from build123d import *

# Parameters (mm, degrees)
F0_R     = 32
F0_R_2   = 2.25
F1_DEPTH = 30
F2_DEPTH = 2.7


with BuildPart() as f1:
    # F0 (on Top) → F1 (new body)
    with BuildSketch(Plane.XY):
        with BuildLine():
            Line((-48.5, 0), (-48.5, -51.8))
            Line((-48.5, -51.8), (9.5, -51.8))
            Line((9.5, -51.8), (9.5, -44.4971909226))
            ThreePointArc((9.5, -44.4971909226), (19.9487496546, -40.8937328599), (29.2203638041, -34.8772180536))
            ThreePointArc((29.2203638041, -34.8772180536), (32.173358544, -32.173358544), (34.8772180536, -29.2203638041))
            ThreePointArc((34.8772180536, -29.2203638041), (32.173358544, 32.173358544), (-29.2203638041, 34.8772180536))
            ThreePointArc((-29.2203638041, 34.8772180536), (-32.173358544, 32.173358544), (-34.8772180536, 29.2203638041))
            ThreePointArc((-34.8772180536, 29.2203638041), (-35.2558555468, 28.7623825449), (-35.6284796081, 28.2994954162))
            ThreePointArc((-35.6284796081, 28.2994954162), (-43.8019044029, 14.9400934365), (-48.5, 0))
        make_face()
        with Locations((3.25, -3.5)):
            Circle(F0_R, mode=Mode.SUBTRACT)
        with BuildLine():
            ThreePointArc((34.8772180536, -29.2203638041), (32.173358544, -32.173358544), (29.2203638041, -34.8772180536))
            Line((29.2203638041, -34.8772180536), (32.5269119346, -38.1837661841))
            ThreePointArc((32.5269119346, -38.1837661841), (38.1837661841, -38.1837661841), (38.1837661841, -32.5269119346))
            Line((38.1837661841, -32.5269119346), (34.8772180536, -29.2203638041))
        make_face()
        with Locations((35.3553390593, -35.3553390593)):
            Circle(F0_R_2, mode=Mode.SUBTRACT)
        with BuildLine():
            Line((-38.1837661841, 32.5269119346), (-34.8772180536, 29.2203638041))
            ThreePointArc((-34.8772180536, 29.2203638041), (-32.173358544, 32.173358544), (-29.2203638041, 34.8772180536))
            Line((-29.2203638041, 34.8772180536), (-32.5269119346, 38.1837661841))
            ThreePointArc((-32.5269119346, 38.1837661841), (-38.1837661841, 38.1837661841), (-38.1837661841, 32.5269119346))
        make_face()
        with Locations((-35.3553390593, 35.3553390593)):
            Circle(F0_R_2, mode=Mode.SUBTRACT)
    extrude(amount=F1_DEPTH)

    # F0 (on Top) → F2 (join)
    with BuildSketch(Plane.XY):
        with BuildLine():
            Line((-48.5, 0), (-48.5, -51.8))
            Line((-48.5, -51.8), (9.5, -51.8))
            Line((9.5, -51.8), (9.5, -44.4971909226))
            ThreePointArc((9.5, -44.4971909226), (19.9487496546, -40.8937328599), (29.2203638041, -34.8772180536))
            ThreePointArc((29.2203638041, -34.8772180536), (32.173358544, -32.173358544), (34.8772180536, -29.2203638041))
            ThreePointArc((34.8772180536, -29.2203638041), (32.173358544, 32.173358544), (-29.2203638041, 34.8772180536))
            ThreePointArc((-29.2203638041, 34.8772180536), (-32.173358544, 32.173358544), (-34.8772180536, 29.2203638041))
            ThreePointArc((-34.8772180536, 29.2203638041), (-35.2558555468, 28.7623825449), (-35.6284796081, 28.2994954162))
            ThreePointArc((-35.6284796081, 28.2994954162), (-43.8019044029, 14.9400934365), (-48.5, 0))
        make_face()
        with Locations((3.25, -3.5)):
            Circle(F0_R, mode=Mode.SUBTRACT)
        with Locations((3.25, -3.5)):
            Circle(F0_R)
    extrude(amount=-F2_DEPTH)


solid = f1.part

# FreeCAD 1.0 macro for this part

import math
import FreeCAD as App
import Part
import Sketcher
Q = App.Units.Quantity

doc = App.newDocument("Part")
body = doc.addObject("PartDesign::Body", "Body")

# Sketch on XY plane
sketch1 = doc.addObject("Sketcher::SketchObject", "Sketch")
body.addObject(sketch1)
sketch1.AttachmentSupport = (doc.XY_Plane, [""])
sketch1.MapMode = "FlatFace"
sketch1.addGeometry(Part.LineSegment(App.Vector(-48.5, 0, 0), App.Vector(-48.5, -51.8, 0)), False)
sketch1.addGeometry(Part.LineSegment(App.Vector(-48.5, -51.8, 0), App.Vector(9.5, -51.8, 0)), False)
sketch1.addGeometry(Part.LineSegment(App.Vector(9.5, -51.8, 0), App.Vector(9.5, -44.5, 0)), False)
sketch1.addGeometry(Part.ArcOfCircle(Part.Circle(App.Vector(0, 0, 0), App.Vector(0, 0, 1), 45.5), math.radians(-78), math.radians(-50)), False)
sketch1.addGeometry(Part.LineSegment(App.Vector(29.2, -34.9, 0), App.Vector(32.5, -38.2, 0)), False)
sketch1.addGeometry(Part.ArcOfCircle(Part.Circle(App.Vector(35.4, -35.4, 0), App.Vector(0, 0, 1), 4), math.radians(-135), math.radians(45)), False)
sketch1.addGeometry(Part.LineSegment(App.Vector(38.2, -32.5, 0), App.Vector(34.9, -29.2, 0)), False)
sketch1.addGeometry(Part.ArcOfCircle(Part.Circle(App.Vector(0, 0, 0), App.Vector(0, 0, 1), 45.5), math.radians(-40), math.radians(130)), False)
sketch1.addGeometry(Part.LineSegment(App.Vector(-29.2, 34.9, 0), App.Vector(-32.5, 38.2, 0)), False)
sketch1.addGeometry(Part.ArcOfCircle(Part.Circle(App.Vector(-35.4, 35.4, 0), App.Vector(0, 0, 1), 4), math.radians(45), math.radians(225)), False)
sketch1.addGeometry(Part.LineSegment(App.Vector(-38.2, 32.5, 0), App.Vector(-34.9, 29.2, 0)), False)
sketch1.addGeometry(Part.ArcOfCircle(Part.Circle(App.Vector(0, 0, 0), App.Vector(0, 0, 1), 45.5), math.radians(140.04), math.radians(141.54)), False)
sketch1.addGeometry(Part.ArcOfCircle(Part.Circle(App.Vector(14.7, -11.7, 0), App.Vector(0, 0, 1), 64.2), math.radians(142), math.radians(170)), False)
sketch1.addGeometry(Part.Circle(App.Vector(35.4, -35.4, 0), App.Vector(0, 0, 1), 2.2), False)
sketch1.addGeometry(Part.Circle(App.Vector(3.2, -3.5, 0), App.Vector(0, 0, 1), 32), False)
sketch1.addGeometry(Part.Circle(App.Vector(-35.4, 35.4, 0), App.Vector(0, 0, 1), 2.2), False)
sketch1.addConstraint(Sketcher.Constraint("Coincident", 0, 2, 1, 1))
sketch1.addConstraint(Sketcher.Constraint("Coincident", 1, 2, 2, 1))
sketch1.addConstraint(Sketcher.Constraint("Coincident", 2, 2, 3, 1))
sketch1.addConstraint(Sketcher.Constraint("Coincident", 3, 2, 4, 1))
sketch1.addConstraint(Sketcher.Constraint("Tangent", 4, 2, 5, 1))
sketch1.addConstraint(Sketcher.Constraint("Tangent", 5, 2, 6, 1))
sketch1.addConstraint(Sketcher.Constraint("Coincident", 6, 2, 7, 1))
sketch1.addConstraint(Sketcher.Constraint("Coincident", 7, 2, 8, 1))
sketch1.addConstraint(Sketcher.Constraint("Tangent", 8, 2, 9, 1))
sketch1.addConstraint(Sketcher.Constraint("Tangent", 9, 2, 10, 1))
sketch1.addConstraint(Sketcher.Constraint("Coincident", 10, 2, 11, 1))
sketch1.addConstraint(Sketcher.Constraint("Tangent", 11, 2, 12, 1))
sketch1.addConstraint(Sketcher.Constraint("Coincident", 12, 2, 0, 1))
sketch1.addConstraint(Sketcher.Constraint("Vertical", 0))
sketch1.addConstraint(Sketcher.Constraint("Horizontal", 1))
sketch1.addConstraint(Sketcher.Constraint("Vertical", 2))
sketch1.addConstraint(Sketcher.Constraint("Coincident", 3, 3, -1, 1))
sketch1.addConstraint(Sketcher.Constraint("Coincident", 7, 3, -1, 1))
sketch1.addConstraint(Sketcher.Constraint("Coincident", 11, 3, -1, 1))
sketch1.addConstraint(Sketcher.Constraint("Coincident", 13, 3, 5, 3))
sketch1.addConstraint(Sketcher.Constraint("Coincident", 15, 3, 9, 3))
sketch1.addConstraint(Sketcher.Constraint("Equal", 3, 7))
sketch1.addConstraint(Sketcher.Constraint("Equal", 5, 9))
sketch1.addConstraint(Sketcher.Constraint("Equal", 7, 11))
sketch1.addConstraint(Sketcher.Constraint("Equal", 13, 15))
sketch1.addConstraint(Sketcher.Constraint("Symmetric", 5, 3, 9, 3, -1, 1))
sketch1.addConstraint(Sketcher.Constraint("PointOnObject", 12, 2, -1))
sketch1.addConstraint(Sketcher.Constraint("Parallel", 4, 6))
sketch1.addConstraint(Sketcher.Constraint("Parallel", 6, 8))
sketch1.addConstraint(Sketcher.Constraint("Parallel", 8, 10))
sketch1.addConstraint(Sketcher.Constraint("Equal", 4, 6))
sketch1.addConstraint(Sketcher.Constraint("Diameter", 14, Q("64 mm")))
sketch1.addConstraint(Sketcher.Constraint("Radius", 5, Q("4 mm")))
sketch1.addConstraint(Sketcher.Constraint("Diameter", 13, Q("4.5 mm")))
sketch1.addConstraint(Sketcher.Constraint("Radius", 3, Q("45.5 mm")))
sketch1.addConstraint(Sketcher.Constraint("DistanceX", 1, 1, 1, 2, Q("58 mm")))
sketch1.addConstraint(Sketcher.Constraint("Angle", 4, Q("-45 deg")))
sketch1.addConstraint(Sketcher.Constraint("DistanceY", 0, 2, 0, 1, Q("51.8 mm")))
sketch1.addConstraint(Sketcher.Constraint("DistanceY", 14, 3, -1, 1, Q("3.5 mm")))
sketch1.addConstraint(Sketcher.Constraint("DistanceX", 0, 2, -1, 1, Q("48.5 mm")))
sketch1.addConstraint(Sketcher.Constraint("DistanceX", -1, 1, 14, 3, Q("3.25 mm")))
sketch1.addConstraint(Sketcher.Constraint("Radius", 12, Q("64.244043 mm")))
sketch1.addConstraint(Sketcher.Constraint("DistanceX", -1, 1, 5, 3, Q("35.355339 mm")))
pad1 = doc.addObject("PartDesign::Pad", "Pad")
body.addObject(pad1)
pad1.Profile = sketch1
pad1.Length = 30

# Sketch on XY plane
sketch2 = doc.addObject("Sketcher::SketchObject", "Sketch001")
body.addObject(sketch2)
sketch2.AttachmentSupport = (doc.XY_Plane, [""])
sketch2.MapMode = "FlatFace"
sketch2.addGeometry(Part.LineSegment(App.Vector(-48.5, 0, 0), App.Vector(-48.5, -51.8, 0)), False)
sketch2.addGeometry(Part.LineSegment(App.Vector(-48.5, -51.8, 0), App.Vector(9.5, -51.8, 0)), False)
sketch2.addGeometry(Part.LineSegment(App.Vector(9.5, -51.8, 0), App.Vector(9.5, -44.5, 0)), False)
sketch2.addGeometry(Part.ArcOfCircle(Part.Circle(App.Vector(0, 0, 0), App.Vector(0, 0, 1), 45.5), math.radians(-78), math.radians(-50)), False)
sketch2.addGeometry(Part.ArcOfCircle(Part.Circle(App.Vector(0, 0, 0), App.Vector(0, 0, 1), 45.5), math.radians(-50.04), math.radians(-39.96)), False)
sketch2.addGeometry(Part.ArcOfCircle(Part.Circle(App.Vector(0, 0, 0), App.Vector(0, 0, 1), 45.5), math.radians(-40), math.radians(130)), False)
sketch2.addGeometry(Part.ArcOfCircle(Part.Circle(App.Vector(0, 0, 0), App.Vector(0, 0, 1), 45.5), math.radians(129.96), math.radians(140.04)), False)
sketch2.addGeometry(Part.ArcOfCircle(Part.Circle(App.Vector(0, 0, 0), App.Vector(0, 0, 1), 45.5), math.radians(140.04), math.radians(141.54)), False)
sketch2.addGeometry(Part.ArcOfCircle(Part.Circle(App.Vector(14.7, -11.7, 0), App.Vector(0, 0, 1), 64.2), math.radians(142), math.radians(170)), False)
sketch2.addConstraint(Sketcher.Constraint("Coincident", 0, 2, 1, 1))
sketch2.addConstraint(Sketcher.Constraint("Coincident", 1, 2, 2, 1))
sketch2.addConstraint(Sketcher.Constraint("Coincident", 2, 2, 3, 1))
sketch2.addConstraint(Sketcher.Constraint("Tangent", 3, 2, 4, 1))
sketch2.addConstraint(Sketcher.Constraint("Tangent", 4, 2, 5, 1))
sketch2.addConstraint(Sketcher.Constraint("Tangent", 5, 2, 6, 1))
sketch2.addConstraint(Sketcher.Constraint("Tangent", 6, 2, 7, 1))
sketch2.addConstraint(Sketcher.Constraint("Tangent", 7, 2, 8, 1))
sketch2.addConstraint(Sketcher.Constraint("Coincident", 8, 2, 0, 1))
sketch2.addConstraint(Sketcher.Constraint("Vertical", 0))
sketch2.addConstraint(Sketcher.Constraint("Horizontal", 1))
sketch2.addConstraint(Sketcher.Constraint("Vertical", 2))
sketch2.addConstraint(Sketcher.Constraint("Coincident", 3, 3, -1, 1))
sketch2.addConstraint(Sketcher.Constraint("Coincident", 5, 3, -1, 1))
sketch2.addConstraint(Sketcher.Constraint("Coincident", 7, 3, -1, 1))
sketch2.addConstraint(Sketcher.Constraint("PointOnObject", 8, 2, -1))
sketch2.addConstraint(Sketcher.Constraint("Radius", 3, Q("45.5 mm")))
sketch2.addConstraint(Sketcher.Constraint("DistanceX", 1, 1, 1, 2, Q("58 mm")))
sketch2.addConstraint(Sketcher.Constraint("DistanceY", 0, 2, 0, 1, Q("51.8 mm")))
sketch2.addConstraint(Sketcher.Constraint("DistanceX", 0, 2, -1, 1, Q("48.5 mm")))
sketch2.addConstraint(Sketcher.Constraint("Radius", 8, Q("64.244043 mm")))
sketch2.addConstraint(Sketcher.Constraint("DistanceY", 3, 2, -1, 1, Q("34.877218 mm")))
sketch2.addConstraint(Sketcher.Constraint("DistanceX", -1, 1, 4, 2, Q("34.877218 mm")))
sketch2.addConstraint(Sketcher.Constraint("DistanceY", -1, 1, 5, 2, Q("34.877218 mm")))
sketch2.addConstraint(Sketcher.Constraint("DistanceX", 6, 2, -1, 1, Q("34.877218 mm")))
pad2 = doc.addObject("PartDesign::Pad", "Pad001")
body.addObject(pad2)
pad2.Profile = sketch2
pad2.Length = 2.7
pad2.Reversed = True

doc.recompute()
